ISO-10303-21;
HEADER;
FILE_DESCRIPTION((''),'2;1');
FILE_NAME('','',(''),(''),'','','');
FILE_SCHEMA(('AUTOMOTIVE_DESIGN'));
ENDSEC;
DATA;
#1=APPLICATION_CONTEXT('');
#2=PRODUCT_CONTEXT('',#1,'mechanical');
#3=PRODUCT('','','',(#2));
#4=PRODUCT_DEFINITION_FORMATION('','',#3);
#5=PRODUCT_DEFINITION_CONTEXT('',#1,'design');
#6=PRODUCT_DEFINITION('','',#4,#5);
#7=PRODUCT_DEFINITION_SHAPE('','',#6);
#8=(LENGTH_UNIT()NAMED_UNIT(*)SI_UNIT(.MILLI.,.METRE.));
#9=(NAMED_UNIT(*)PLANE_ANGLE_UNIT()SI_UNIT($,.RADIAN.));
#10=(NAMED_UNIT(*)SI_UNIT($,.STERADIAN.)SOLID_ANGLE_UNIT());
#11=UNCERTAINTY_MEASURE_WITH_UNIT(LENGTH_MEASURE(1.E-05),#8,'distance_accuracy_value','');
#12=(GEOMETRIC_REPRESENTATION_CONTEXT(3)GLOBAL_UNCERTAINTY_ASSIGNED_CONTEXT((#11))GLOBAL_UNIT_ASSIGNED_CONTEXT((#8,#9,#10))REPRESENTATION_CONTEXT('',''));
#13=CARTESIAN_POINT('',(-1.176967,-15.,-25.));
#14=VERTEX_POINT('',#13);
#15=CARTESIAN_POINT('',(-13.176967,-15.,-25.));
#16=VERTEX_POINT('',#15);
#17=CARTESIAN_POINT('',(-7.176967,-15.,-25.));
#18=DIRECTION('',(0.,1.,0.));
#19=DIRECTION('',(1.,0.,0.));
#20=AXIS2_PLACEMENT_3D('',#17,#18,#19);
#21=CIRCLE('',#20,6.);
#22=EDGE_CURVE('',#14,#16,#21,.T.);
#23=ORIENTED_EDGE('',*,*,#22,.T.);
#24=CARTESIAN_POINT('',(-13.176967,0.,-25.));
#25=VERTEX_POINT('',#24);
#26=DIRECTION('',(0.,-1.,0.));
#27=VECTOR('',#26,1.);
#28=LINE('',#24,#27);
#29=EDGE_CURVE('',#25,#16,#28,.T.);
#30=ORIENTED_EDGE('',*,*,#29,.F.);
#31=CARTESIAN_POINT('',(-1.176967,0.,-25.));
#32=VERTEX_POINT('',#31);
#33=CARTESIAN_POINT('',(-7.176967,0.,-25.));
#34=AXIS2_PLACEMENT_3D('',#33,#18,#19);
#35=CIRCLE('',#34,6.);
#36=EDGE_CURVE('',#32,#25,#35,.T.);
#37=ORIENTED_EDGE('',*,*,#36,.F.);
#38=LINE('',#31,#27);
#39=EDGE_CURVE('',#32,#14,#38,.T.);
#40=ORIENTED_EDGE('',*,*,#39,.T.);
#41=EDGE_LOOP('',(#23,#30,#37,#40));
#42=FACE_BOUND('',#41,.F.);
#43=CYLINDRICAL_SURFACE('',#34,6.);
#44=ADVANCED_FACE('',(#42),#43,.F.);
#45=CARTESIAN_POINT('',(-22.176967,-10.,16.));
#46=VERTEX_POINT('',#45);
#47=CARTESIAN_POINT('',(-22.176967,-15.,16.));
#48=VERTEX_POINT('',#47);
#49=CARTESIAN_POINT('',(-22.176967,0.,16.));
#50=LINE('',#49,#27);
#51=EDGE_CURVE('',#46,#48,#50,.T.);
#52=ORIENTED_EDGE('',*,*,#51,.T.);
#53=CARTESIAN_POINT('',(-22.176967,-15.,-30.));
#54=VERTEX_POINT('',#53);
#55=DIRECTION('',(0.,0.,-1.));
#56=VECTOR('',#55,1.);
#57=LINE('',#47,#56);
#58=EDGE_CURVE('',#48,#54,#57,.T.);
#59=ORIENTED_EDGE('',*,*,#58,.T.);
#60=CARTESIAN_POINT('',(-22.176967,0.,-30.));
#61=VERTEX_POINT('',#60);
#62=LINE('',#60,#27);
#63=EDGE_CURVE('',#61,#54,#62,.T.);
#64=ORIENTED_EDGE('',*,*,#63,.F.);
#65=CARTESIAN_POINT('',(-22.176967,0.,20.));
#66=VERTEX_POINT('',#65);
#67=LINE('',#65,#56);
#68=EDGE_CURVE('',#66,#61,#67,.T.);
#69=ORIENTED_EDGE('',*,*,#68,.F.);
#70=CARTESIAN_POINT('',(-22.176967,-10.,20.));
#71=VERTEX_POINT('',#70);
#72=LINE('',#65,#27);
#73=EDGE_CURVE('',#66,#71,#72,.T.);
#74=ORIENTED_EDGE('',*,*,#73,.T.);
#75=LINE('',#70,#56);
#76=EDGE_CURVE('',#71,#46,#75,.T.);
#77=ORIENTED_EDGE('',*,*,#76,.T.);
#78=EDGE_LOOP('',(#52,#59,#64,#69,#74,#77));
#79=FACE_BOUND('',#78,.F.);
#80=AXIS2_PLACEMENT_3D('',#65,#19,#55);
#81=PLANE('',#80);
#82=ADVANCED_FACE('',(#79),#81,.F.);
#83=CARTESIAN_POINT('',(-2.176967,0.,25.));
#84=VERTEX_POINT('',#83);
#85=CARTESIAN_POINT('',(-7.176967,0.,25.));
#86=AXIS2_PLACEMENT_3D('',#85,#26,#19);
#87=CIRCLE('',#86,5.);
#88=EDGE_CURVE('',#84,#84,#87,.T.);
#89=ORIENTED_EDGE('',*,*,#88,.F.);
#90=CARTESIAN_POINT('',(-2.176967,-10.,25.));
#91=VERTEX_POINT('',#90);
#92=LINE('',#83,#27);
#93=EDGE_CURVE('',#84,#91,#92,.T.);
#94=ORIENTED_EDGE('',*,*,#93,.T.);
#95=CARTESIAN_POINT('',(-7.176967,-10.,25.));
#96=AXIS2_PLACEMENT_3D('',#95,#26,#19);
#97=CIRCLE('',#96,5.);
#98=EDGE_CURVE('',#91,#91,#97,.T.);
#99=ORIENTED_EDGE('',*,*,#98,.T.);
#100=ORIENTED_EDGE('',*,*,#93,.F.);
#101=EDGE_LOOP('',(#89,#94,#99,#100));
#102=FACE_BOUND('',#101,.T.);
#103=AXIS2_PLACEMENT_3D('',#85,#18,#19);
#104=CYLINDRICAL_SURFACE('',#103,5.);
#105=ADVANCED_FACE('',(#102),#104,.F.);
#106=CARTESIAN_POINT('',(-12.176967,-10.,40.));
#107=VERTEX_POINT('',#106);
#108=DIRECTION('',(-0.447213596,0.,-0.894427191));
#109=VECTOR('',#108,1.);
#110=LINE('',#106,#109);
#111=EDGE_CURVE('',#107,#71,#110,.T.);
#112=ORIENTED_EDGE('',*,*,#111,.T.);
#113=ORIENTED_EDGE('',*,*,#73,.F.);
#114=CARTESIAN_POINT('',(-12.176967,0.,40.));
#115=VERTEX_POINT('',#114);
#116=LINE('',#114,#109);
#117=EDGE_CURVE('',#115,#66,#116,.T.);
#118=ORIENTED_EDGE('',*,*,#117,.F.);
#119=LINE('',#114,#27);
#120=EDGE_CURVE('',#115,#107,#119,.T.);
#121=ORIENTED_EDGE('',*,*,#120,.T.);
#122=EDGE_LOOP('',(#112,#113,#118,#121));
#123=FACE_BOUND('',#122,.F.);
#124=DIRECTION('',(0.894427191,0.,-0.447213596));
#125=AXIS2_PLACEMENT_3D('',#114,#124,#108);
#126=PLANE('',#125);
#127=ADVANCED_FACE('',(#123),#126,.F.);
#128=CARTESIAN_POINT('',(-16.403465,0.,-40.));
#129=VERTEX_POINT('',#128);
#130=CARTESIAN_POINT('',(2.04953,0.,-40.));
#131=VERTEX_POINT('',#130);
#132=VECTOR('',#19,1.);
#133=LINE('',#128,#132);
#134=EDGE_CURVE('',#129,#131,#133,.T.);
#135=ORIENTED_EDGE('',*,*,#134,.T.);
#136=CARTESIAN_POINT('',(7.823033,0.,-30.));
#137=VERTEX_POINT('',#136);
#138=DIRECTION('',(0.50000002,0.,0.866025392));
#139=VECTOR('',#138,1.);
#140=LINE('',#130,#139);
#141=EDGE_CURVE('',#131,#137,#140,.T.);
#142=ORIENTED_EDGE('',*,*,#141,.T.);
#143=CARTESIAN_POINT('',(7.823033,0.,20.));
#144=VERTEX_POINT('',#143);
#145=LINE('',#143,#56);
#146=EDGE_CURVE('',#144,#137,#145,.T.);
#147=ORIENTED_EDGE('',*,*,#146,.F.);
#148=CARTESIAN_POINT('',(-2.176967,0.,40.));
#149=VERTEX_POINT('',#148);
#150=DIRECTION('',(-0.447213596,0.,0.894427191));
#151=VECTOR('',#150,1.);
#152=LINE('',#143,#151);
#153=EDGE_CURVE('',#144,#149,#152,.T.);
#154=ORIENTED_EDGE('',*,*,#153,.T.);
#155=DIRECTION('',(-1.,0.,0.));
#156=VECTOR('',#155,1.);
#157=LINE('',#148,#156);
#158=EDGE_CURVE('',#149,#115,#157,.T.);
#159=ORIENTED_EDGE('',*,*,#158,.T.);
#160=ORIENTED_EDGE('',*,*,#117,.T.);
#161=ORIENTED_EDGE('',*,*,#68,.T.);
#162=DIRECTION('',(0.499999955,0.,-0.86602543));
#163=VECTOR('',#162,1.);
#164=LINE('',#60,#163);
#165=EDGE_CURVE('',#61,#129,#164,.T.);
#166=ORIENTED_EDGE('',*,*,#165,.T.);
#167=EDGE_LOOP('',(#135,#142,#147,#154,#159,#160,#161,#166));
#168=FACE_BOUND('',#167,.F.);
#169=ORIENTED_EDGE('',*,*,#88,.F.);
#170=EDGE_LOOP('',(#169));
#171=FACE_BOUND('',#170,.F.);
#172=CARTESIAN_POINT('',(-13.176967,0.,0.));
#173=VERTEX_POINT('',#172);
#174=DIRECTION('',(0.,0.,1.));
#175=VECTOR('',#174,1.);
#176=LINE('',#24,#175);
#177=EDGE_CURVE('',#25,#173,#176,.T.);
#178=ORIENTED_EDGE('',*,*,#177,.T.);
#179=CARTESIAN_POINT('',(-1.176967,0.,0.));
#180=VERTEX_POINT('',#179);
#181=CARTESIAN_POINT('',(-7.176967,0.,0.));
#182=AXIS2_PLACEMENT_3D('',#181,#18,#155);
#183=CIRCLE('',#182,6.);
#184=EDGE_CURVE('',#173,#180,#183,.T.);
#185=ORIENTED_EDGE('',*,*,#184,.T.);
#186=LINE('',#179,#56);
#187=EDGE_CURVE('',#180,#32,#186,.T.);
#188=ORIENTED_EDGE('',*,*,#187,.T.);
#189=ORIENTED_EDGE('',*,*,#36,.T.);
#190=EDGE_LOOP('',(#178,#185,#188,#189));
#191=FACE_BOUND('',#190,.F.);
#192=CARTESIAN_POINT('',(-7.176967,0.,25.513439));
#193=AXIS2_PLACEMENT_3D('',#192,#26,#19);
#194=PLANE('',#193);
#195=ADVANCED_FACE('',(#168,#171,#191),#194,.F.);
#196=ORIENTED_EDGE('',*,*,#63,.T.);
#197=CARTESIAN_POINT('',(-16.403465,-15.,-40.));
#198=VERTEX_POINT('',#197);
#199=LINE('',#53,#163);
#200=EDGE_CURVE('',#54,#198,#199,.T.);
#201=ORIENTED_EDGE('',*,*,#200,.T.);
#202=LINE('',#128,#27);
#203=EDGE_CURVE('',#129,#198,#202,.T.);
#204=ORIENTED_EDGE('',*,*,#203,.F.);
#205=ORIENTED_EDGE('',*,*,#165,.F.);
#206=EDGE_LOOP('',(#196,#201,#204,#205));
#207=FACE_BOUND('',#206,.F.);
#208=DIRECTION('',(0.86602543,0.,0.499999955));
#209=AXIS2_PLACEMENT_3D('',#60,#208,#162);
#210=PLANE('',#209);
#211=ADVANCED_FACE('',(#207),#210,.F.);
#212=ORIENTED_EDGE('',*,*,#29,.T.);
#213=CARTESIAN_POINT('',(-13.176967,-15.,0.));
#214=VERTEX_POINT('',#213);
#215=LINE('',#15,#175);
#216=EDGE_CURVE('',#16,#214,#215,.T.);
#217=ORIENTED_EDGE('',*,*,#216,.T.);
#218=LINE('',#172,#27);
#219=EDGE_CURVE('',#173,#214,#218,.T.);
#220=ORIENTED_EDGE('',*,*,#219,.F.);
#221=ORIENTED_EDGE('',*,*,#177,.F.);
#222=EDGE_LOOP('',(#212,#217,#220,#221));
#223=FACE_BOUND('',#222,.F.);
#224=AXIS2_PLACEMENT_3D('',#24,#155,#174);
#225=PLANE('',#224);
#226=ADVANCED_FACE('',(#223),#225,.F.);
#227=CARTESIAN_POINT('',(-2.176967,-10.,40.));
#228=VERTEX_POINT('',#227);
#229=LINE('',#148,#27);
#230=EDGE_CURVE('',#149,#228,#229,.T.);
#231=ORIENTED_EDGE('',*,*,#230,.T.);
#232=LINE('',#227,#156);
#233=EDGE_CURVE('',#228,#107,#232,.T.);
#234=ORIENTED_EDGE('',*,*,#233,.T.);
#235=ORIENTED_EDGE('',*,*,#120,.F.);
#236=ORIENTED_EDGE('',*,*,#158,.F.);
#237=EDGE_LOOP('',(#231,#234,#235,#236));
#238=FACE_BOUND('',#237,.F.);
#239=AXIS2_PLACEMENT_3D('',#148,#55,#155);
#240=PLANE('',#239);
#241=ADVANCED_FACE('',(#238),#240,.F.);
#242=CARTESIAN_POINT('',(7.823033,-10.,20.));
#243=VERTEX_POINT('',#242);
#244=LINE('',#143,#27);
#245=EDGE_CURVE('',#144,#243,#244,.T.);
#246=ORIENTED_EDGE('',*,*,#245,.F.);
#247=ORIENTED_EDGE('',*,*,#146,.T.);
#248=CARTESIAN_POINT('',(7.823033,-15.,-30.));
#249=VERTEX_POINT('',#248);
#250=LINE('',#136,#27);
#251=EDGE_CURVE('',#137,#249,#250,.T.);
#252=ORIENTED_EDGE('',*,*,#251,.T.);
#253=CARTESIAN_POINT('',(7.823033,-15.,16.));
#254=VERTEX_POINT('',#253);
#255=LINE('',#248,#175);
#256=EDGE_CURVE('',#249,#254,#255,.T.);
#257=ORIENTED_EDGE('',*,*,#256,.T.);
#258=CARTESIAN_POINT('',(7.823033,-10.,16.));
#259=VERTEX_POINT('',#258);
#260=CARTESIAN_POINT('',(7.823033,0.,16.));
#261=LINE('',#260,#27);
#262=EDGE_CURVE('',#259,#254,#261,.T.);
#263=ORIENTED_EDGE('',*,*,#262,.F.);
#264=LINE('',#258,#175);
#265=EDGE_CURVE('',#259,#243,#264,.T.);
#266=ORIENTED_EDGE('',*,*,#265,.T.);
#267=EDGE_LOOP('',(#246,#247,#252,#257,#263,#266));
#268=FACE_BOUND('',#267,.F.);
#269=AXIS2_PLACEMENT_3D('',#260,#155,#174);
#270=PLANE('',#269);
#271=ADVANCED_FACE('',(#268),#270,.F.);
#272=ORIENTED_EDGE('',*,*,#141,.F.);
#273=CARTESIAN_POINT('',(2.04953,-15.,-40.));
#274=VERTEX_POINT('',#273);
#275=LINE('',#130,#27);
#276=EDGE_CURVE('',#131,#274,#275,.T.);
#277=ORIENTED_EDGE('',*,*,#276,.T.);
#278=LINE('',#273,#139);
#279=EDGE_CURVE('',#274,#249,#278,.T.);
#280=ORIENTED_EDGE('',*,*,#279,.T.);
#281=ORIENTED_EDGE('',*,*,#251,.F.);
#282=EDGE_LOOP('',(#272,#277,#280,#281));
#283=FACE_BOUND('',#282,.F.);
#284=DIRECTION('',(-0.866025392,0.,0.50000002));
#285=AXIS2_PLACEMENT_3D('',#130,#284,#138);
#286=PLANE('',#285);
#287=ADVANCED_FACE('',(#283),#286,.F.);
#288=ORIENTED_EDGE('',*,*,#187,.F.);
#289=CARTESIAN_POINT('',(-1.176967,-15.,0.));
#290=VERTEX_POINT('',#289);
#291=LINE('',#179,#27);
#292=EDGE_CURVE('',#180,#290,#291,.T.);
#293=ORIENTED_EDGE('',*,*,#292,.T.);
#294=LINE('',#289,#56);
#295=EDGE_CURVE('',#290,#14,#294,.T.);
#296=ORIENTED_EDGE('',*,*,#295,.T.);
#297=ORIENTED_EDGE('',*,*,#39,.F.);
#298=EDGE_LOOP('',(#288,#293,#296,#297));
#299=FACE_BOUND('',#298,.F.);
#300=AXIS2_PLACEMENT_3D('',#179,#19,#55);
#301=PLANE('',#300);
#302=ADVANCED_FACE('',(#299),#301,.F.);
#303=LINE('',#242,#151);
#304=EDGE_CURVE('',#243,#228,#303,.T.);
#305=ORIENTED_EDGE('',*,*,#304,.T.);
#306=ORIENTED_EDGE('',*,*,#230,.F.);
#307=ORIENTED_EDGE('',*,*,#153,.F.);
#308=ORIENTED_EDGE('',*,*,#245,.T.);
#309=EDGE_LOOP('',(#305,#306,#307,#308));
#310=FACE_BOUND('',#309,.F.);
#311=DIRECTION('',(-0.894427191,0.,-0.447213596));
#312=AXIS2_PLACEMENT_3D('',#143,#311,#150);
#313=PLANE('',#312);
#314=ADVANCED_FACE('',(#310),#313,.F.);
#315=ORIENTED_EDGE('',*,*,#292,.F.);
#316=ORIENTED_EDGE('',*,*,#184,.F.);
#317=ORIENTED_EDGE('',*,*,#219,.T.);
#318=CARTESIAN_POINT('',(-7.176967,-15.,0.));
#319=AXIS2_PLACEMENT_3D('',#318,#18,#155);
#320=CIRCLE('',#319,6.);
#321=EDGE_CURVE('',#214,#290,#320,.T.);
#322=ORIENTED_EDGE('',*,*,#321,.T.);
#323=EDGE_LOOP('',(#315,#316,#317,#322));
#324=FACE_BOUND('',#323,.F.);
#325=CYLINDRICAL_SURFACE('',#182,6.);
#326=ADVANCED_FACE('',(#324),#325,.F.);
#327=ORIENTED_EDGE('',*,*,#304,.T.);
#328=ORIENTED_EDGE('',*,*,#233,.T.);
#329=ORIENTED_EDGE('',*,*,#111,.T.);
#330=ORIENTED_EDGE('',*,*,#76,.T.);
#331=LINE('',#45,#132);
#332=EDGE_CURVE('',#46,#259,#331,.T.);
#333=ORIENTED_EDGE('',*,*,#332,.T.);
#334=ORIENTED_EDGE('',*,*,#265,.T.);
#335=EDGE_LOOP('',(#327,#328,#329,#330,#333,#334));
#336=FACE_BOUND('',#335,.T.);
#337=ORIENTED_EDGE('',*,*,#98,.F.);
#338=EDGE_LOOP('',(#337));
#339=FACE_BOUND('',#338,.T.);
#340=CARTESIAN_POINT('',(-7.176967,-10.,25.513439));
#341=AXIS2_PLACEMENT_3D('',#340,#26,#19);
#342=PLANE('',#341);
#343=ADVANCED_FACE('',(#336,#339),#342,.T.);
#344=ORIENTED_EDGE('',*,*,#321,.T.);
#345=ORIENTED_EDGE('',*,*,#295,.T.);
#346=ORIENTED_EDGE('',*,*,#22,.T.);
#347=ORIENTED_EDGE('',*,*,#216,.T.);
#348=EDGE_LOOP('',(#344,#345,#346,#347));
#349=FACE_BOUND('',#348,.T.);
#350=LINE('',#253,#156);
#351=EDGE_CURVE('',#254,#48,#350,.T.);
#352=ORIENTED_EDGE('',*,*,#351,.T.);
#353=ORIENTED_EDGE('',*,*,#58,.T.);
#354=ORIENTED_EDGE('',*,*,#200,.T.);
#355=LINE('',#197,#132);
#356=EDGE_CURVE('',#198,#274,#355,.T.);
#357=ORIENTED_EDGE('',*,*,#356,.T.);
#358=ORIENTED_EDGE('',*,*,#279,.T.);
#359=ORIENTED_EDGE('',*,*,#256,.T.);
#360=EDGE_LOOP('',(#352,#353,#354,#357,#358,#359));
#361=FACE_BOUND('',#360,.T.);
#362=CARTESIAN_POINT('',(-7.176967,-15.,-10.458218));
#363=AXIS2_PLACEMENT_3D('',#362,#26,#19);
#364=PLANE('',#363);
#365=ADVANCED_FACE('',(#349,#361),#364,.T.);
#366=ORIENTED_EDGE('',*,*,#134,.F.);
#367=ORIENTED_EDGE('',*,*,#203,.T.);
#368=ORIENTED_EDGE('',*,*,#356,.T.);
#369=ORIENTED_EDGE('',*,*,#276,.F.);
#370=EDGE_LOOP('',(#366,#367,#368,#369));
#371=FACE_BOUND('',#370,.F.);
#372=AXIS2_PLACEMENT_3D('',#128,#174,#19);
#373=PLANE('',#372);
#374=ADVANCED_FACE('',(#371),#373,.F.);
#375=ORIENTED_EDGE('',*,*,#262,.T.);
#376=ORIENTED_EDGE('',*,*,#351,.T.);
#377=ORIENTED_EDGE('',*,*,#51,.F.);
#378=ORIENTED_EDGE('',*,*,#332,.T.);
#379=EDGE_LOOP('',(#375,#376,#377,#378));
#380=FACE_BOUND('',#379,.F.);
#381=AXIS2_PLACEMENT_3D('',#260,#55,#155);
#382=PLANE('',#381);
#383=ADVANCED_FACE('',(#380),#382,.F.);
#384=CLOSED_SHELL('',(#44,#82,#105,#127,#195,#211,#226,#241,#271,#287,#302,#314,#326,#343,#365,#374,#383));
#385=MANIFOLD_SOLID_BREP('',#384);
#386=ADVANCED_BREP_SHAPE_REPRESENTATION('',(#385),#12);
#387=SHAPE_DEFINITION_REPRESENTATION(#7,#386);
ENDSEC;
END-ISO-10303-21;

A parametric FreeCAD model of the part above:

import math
import FreeCAD as App
import Part
import Sketcher

V = App.Vector
Q = App.Units.Quantity


def add_polygon(sketch, points):
    """Adds a closed chain of lines whose ends are joined by coincident constraints."""
    first, n = sketch.GeometryCount, len(points)
    for a, b in zip(points, points[1:] + points[:1]):
        sketch.addGeometry(Part.LineSegment(App.Vector(*a, 0), App.Vector(*b, 0)), False)
    for i in range(n):
        sketch.addConstraint(Sketcher.Constraint("Coincident", first + i, 2, first + (i + 1) % n, 1))

doc = App.newDocument("Part")
body = doc.addObject("PartDesign::Body", "Body")

sketch1 = doc.addObject("Sketcher::SketchObject", "Sketch")
body.addObject(sketch1)
sketch1.AttachmentSupport = (doc.XZ_Plane, [""])
sketch1.MapMode = "FlatFace"
add_polygon(sketch1, [(8, 16), (-22, 16), (-22, -30), (-16, -40), (2, -40), (8, -30)])
sketch1.addGeometry(Part.LineSegment(V(-1, 0, 0), V(-1, -25, 0)), False)
sketch1.addGeometry(Part.ArcOfCircle(Part.Circle(V(-7, -25, 0), V(0, 0, 1), 6), math.radians(180), math.radians(360)), False)
sketch1.addGeometry(Part.LineSegment(V(-13, -25, 0), V(-13, 0, 0)), False)
sketch1.addGeometry(Part.ArcOfCircle(Part.Circle(V(-7, 0, 0), V(0, 0, 1), 6), math.radians(0), math.radians(180)), False)
sketch1.addConstraint(Sketcher.Constraint("Tangent", 6, 2, 7, 2))
sketch1.addConstraint(Sketcher.Constraint("Tangent", 7, 1, 8, 1))
sketch1.addConstraint(Sketcher.Constraint("Tangent", 8, 2, 9, 2))
sketch1.addConstraint(Sketcher.Constraint("Tangent", 9, 1, 6, 1))
sketch1.addConstraint(Sketcher.Constraint("Horizontal", 0))
sketch1.addConstraint(Sketcher.Constraint("Vertical", 1))
sketch1.addConstraint(Sketcher.Constraint("Horizontal", 3))
sketch1.addConstraint(Sketcher.Constraint("Vertical", 5))
sketch1.addConstraint(Sketcher.Constraint("Vertical", 6))
sketch1.addConstraint(Sketcher.Constraint("Vertical", 8))
sketch1.addConstraint(Sketcher.Constraint("PointOnObject", 9, 3, -1))
sketch1.addConstraint(Sketcher.Constraint("Horizontal", 1, 2, 4, 2))
sketch1.addConstraint(Sketcher.Constraint("Equal", 2, 4))
sketch1.addConstraint(Sketcher.Constraint("Radius", 7, 6.0))
sketch1.addConstraint(Sketcher.Constraint("DistanceX", 0, 2, 0, 1, 30.0))
sketch1.addConstraint(Sketcher.Constraint("DistanceY", 1, 2, 1, 1, 46.0))
sketch1.addConstraint(Sketcher.Constraint("DistanceY", 6, 2, 6, 1, 25.0))
sketch1.addConstraint(Sketcher.Constraint("Angle", 2, Q("-60.000003 deg")))
sketch1.addConstraint(Sketcher.Constraint("DistanceY", -1, 1, 0, 2, 16.0))
sketch1.addConstraint(Sketcher.Constraint("DistanceY", 2, 2, -1, 1, 40.0))
sketch1.addConstraint(Sketcher.Constraint("DistanceX", 0, 2, 9, 3, 15.0))
sketch1.addConstraint(Sketcher.Constraint("DistanceX", -1, 1, 3, 2, 2.04953))
pad1 = doc.addObject("PartDesign::Pad", "Pad")
body.addObject(pad1)
pad1.Profile = sketch1
pad1.Length = 15

sketch2 = doc.addObject("Sketcher::SketchObject", "Sketch001")
body.addObject(sketch2)
sketch2.AttachmentSupport = (doc.XZ_Plane, [""])
sketch2.MapMode = "FlatFace"
add_polygon(sketch2, [(-22.2, 20), (-22.2, 16), (7.8, 16), (7.8, 20), (-2.2, 40), (-12.2, 40)])
sketch2.addGeometry(Part.Circle(V(-7.2, 25, 0), V(0, 0, 1), 5), False)
sketch2.addConstraint(Sketcher.Constraint("Vertical", 0))
sketch2.addConstraint(Sketcher.Constraint("Horizontal", 1))
sketch2.addConstraint(Sketcher.Constraint("Vertical", 2))
sketch2.addConstraint(Sketcher.Constraint("Horizontal", 4))
sketch2.addConstraint(Sketcher.Constraint("Horizontal", 2, 2, 5, 2))
sketch2.addConstraint(Sketcher.Constraint("Equal", 3, 5))
sketch2.addConstraint(Sketcher.Constraint("Diameter", 6, 10.0))
sketch2.addConstraint(Sketcher.Constraint("DistanceX", 1, 1, 1, 2, 30.0))
sketch2.addConstraint(Sketcher.Constraint("DistanceX", 4, 2, 4, 1, 10.0))
sketch2.addConstraint(Sketcher.Constraint("DistanceY", 0, 2, 0, 1, 4.0))
sketch2.addConstraint(Sketcher.Constraint("DistanceY", -1, 1, 6, 3, 25.0))
sketch2.addConstraint(Sketcher.Constraint("DistanceY", -1, 1, 0, 2, 16.0))
sketch2.addConstraint(Sketcher.Constraint("DistanceY", -1, 1, 3, 2, 40.0))
sketch2.addConstraint(Sketcher.Constraint("DistanceX", 0, 2, 6, 3, 15.0))
sketch2.addConstraint(Sketcher.Constraint("DistanceX", 6, 3, -1, 1, 7.176967))
pad2 = doc.addObject("PartDesign::Pad", "Pad001")
body.addObject(pad2)
pad2.Profile = sketch2
pad2.Length = 10

doc.recompute()
